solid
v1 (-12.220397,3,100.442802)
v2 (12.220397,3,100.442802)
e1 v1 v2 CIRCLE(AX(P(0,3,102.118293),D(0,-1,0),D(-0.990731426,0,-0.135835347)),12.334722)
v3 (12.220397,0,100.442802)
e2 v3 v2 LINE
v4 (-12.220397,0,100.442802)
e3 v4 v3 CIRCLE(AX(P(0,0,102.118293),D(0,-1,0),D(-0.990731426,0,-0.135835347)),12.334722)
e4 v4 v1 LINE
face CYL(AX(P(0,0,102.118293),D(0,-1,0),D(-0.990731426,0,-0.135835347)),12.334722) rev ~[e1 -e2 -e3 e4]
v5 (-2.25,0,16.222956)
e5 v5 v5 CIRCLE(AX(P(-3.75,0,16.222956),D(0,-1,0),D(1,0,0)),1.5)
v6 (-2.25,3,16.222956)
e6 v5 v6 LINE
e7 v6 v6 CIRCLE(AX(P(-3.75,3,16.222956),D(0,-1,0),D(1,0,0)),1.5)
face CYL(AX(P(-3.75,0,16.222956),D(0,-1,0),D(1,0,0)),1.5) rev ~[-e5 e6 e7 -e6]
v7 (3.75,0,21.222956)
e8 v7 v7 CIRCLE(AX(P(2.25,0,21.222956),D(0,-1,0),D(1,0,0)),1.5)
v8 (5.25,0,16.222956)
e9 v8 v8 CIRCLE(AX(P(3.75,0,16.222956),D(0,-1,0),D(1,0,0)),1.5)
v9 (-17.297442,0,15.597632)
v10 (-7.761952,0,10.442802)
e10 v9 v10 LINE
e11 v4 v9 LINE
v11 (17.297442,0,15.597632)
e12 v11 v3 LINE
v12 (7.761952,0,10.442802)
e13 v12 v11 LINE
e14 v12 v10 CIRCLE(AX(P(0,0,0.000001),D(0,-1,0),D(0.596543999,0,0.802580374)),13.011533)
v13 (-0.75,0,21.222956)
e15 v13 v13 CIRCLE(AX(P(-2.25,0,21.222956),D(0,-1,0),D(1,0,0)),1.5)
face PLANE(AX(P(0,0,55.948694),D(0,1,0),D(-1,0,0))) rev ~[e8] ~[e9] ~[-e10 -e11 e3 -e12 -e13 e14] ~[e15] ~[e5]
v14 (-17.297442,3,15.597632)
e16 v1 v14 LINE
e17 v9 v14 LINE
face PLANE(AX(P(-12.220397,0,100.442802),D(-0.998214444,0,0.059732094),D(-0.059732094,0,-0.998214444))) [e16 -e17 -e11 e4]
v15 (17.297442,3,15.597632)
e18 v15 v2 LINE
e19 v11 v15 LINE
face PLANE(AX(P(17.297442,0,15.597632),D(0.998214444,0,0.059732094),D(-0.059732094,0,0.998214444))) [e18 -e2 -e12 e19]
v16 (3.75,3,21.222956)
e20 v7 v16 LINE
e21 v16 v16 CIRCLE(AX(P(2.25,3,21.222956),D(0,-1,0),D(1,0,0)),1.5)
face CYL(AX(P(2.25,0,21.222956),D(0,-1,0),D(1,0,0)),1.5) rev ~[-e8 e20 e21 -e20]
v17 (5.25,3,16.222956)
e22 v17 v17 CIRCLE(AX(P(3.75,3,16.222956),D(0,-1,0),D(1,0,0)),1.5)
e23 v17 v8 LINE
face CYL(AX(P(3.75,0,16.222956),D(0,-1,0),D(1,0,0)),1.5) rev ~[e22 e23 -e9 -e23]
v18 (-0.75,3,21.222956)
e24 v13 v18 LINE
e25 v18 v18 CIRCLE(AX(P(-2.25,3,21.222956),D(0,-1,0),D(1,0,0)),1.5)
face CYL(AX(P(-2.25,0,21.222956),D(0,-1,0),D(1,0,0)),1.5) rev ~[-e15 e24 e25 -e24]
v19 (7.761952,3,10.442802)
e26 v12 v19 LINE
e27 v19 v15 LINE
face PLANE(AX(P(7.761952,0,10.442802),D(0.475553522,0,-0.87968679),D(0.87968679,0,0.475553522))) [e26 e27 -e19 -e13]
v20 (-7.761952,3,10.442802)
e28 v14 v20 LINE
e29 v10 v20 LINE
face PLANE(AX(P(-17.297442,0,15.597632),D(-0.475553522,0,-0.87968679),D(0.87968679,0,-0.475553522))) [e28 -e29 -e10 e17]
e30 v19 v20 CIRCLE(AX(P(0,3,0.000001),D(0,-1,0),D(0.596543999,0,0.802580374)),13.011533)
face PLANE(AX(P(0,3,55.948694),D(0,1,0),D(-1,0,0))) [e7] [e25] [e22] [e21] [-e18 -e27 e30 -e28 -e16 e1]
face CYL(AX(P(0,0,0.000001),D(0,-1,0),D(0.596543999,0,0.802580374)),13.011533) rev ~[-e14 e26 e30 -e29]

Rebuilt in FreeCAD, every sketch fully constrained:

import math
import FreeCAD as App
import Part
import Sketcher

V = App.Vector
Q = App.Units.Quantity

doc = App.newDocument("Part")
body = doc.addObject("PartDesign::Body", "Body")
body.AllowCompound = True

# Sketch on XZ plane
sketch1 = doc.addObject("Sketcher::SketchObject", "Sketch")
body.addObject(sketch1)
sketch1.AttachmentSupport = (doc.XZ_Plane, [""])
sketch1.MapMode = "FlatFace"
sketch1.addGeometry(Part.Circle(V(-2.25, 21.222956, 0), V(0, 0, 1), 1.5), False)
sketch1.addGeometry(Part.Circle(V(-3.75, 16.222956, 0), V(0, 0, 1), 1.5), False)
sketch1.addGeometry(Part.Circle(V(2.25, 21.222956, 0), V(0, 0, 1), 1.5), False)
sketch1.addGeometry(Part.Circle(V(3.75, 16.222956, 0), V(0, 0, 1), 1.5), False)
sketch1.addConstraint(Sketcher.Constraint("Equal", 0, 1))
sketch1.addConstraint(Sketcher.Constraint("Equal", 1, 2))
sketch1.addConstraint(Sketcher.Constraint("Equal", 2, 3))
sketch1.addConstraint(Sketcher.Constraint("Symmetric", 0, 3, 2, 3, -2))
sketch1.addConstraint(Sketcher.Constraint("Symmetric", 1, 3, 3, 3, -2))
sketch1.addConstraint(Sketcher.Constraint("Diameter", 0, Q("3 mm")))
sketch1.addConstraint(Sketcher.Constraint("DistanceY", 1, 3, 0, 3, Q("5 mm")))
sketch1.addConstraint(Sketcher.Constraint("DistanceX", 1, 3, 2, 3, Q("6 mm")))
sketch1.addConstraint(Sketcher.Constraint("DistanceX", 1, 3, 0, 3, Q("1.5 mm")))
sketch1.addConstraint(Sketcher.Constraint("DistanceY", -1, 1, 0, 3, Q("21.222956 mm")))
pad1 = doc.addObject("PartDesign::Pad", "Pad")
body.addObject(pad1)
pad1.Profile = sketch1
pad1.Length = 20
pad1.Midplane = True
body2 = doc.addObject("PartDesign::Body", "Body001")

# Sketch on XZ plane
sketch2 = doc.addObject("Sketcher::SketchObject", "Sketch001")
body2.addObject(sketch2)
sketch2.AttachmentSupport = (doc.getObject("XZ_Plane001"), [""])
sketch2.MapMode = "FlatFace"
sketch2.addGeometry(Part.ArcOfCircle(Part.Circle(V(0, 0.000001, 0), V(0, 0, 1), 13.011533), math.radians(53.377221), math.radians(126.622779)), False)
sketch2.addGeometry(Part.LineSegment(V(7.761952, 10.442802, 0), V(17.297442, 15.597632, 0)), False)
sketch2.addGeometry(Part.LineSegment(V(17.297442, 15.597632, 0), V(12.220397, 100.442802, 0)), False)
sketch2.addGeometry(Part.ArcOfCircle(Part.Circle(V(0, 102.118293, 0), V(0, 0, 1), 12.334722), math.radians(-172.193073), math.radians(-7.806927)), False)
sketch2.addGeometry(Part.LineSegment(V(-12.220397, 100.442802, 0), V(-17.297442, 15.597632, 0)), False)
sketch2.addGeometry(Part.LineSegment(V(-17.297442, 15.597632, 0), V(-7.761952, 10.442802, 0)), False)
sketch2.addConstraint(Sketcher.Constraint("Coincident", 0, 1, 1, 1))
sketch2.addConstraint(Sketcher.Constraint("Coincident", 1, 2, 2, 1))
sketch2.addConstraint(Sketcher.Constraint("Coincident", 2, 2, 3, 2))
sketch2.addConstraint(Sketcher.Constraint("Coincident", 3, 1, 4, 1))
sketch2.addConstraint(Sketcher.Constraint("Coincident", 4, 2, 5, 1))
sketch2.addConstraint(Sketcher.Constraint("Coincident", 5, 2, 0, 2))
sketch2.addConstraint(Sketcher.Constraint("Coincident", 0, 3, -1, 1))
sketch2.addConstraint(Sketcher.Constraint("Symmetric", 2, 2, 3, 1, -2))
sketch2.addConstraint(Sketcher.Constraint("Symmetric", 1, 2, 4, 2, -2))
sketch2.addConstraint(Sketcher.Constraint("Horizontal", 0, 1, 5, 2))
sketch2.addConstraint(Sketcher.Constraint("DistanceY", 0, 1, 2, 2, Q("90 mm")))
sketch2.addConstraint(Sketcher.Constraint("Radius", 0, Q("13.011533 mm")))
sketch2.addConstraint(Sketcher.Constraint("Radius", 3, Q("12.334722 mm")))
sketch2.addConstraint(Sketcher.Constraint("DistanceY", -1, 1, 0, 1, Q("10.442802 mm")))
sketch2.addConstraint(Sketcher.Constraint("DistanceX", -1, 1, 1, 2, Q("17.297442 mm")))
sketch2.addConstraint(Sketcher.Constraint("DistanceY", 0, 1, 3, 3, Q("91.675491 mm")))
sketch2.addConstraint(Sketcher.Constraint("DistanceY", 0, 1, 1, 2, Q("5.15483 mm")))
pad2 = doc.addObject("PartDesign::Pad", "Pad001")
body2.addObject(pad2)
pad2.Profile = sketch2
pad2.Length = 3
pad2.Reversed = True
doc.recompute()

boolean = doc.addObject("PartDesign::Boolean", "Boolean")
body2.addObject(boolean)
boolean.Type = "Cut"
boolean.addObjects([body])

doc.recompute()
